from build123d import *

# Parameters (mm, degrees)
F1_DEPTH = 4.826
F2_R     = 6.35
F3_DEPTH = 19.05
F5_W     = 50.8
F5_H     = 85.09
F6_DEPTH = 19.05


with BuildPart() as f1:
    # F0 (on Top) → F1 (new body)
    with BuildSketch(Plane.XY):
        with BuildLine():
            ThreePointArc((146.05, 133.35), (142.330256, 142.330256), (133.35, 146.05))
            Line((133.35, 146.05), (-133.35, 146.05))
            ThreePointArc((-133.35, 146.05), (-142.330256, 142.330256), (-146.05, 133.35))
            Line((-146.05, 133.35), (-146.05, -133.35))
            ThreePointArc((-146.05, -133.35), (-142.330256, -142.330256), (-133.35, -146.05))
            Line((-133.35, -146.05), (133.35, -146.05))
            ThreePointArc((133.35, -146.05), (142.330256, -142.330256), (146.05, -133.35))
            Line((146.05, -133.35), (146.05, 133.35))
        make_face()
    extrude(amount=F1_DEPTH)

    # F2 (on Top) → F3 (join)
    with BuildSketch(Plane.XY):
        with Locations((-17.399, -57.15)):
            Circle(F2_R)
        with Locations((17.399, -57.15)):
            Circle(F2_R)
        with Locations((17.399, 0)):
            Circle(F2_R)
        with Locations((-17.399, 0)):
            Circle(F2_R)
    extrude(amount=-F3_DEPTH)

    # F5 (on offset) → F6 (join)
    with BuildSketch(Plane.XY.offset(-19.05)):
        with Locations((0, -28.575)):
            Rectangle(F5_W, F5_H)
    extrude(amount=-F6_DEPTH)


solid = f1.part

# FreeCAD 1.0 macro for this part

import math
import FreeCAD as App
import Part
import Sketcher
from FreeCAD import Vector
Q = App.Units.Quantity

doc = App.newDocument("Part")
body = doc.addObject("PartDesign::Body", "Body")

sketch1 = doc.addObject("Sketcher::SketchObject", "Sketch")
body.addObject(sketch1)
sketch1.AttachmentSupport = (doc.XY_Plane, [""])
sketch1.MapMode = "FlatFace"
sketch1.addGeometry([
    Part.ArcOfCircle(Part.Circle(Vector(133, 133, 0), Vector(0, 0, 1), 13), math.radians(0), math.radians(90)),
    Part.LineSegment(Vector(133, 146, 0), Vector(-133, 146, 0)),
    Part.ArcOfCircle(Part.Circle(Vector(-133, 133, 0), Vector(0, 0, 1), 13), math.radians(90), math.radians(180)),
    Part.LineSegment(Vector(-146, 133, 0), Vector(-146, -133, 0)),
    Part.ArcOfCircle(Part.Circle(Vector(-133, -133, 0), Vector(0, 0, 1), 13), math.radians(-180), math.radians(-90)),
    Part.LineSegment(Vector(-133, -146, 0), Vector(133, -146, 0)),
    Part.ArcOfCircle(Part.Circle(Vector(133, -133, 0), Vector(0, 0, 1), 13), math.radians(-90), math.radians(0)),
    Part.LineSegment(Vector(146, -133, 0), Vector(146, 133, 0)),
], False)
sketch1.addConstraint([
    Sketcher.Constraint("Tangent", 0, 2, 1, 1),
    Sketcher.Constraint("Tangent", 1, 2, 2, 1),
    Sketcher.Constraint("Tangent", 2, 2, 3, 1),
    Sketcher.Constraint("Tangent", 3, 2, 4, 1),
    Sketcher.Constraint("Tangent", 4, 2, 5, 1),
    Sketcher.Constraint("Tangent", 5, 2, 6, 1),
    Sketcher.Constraint("Tangent", 6, 2, 7, 1),
    Sketcher.Constraint("Tangent", 7, 2, 0, 1),
    Sketcher.Constraint("Horizontal", 1),
    Sketcher.Constraint("Vertical", 3),
    Sketcher.Constraint("Horizontal", 5),
    Sketcher.Constraint("Vertical", 7),
    Sketcher.Constraint("Equal", 0, 2),
    Sketcher.Constraint("Equal", 2, 4),
    Sketcher.Constraint("Equal", 4, 6),
    Sketcher.Constraint("Symmetric", 0, 3, 4, 3, -1, 1),
    Sketcher.Constraint("Equal", 5, 3),
    Sketcher.Constraint("Radius", 0, Q("0.5 in")),
    Sketcher.Constraint("DistanceX", 1, 2, 1, 1, Q("10.5 in")),
])
pad1 = doc.addObject("PartDesign::Pad", "Pad")
body.addObject(pad1)
pad1.Profile = sketch1
pad1.Length = Q("0.19 in")

sketch2 = doc.addObject("Sketcher::SketchObject", "Sketch001")
body.addObject(sketch2)
sketch2.AttachmentSupport = (doc.XY_Plane, [""])
sketch2.MapMode = "FlatFace"
sketch2.addGeometry([
    Part.Circle(Vector(-17, -57, 0), Vector(0, 0, 1), 6),
    Part.Circle(Vector(17, -57, 0), Vector(0, 0, 1), 6),
    Part.Circle(Vector(17, 0, 0), Vector(0, 0, 1), 6),
    Part.Circle(Vector(-17, 0, 0), Vector(0, 0, 1), 6),
], False)
sketch2.addConstraint([
    Sketcher.Constraint("Equal", 0, 1),
    Sketcher.Constraint("Equal", 1, 2),
    Sketcher.Constraint("Equal", 2, 3),
    Sketcher.Constraint("Symmetric", 2, 3, 3, 3, -1, 1),
    Sketcher.Constraint("Symmetric", 0, 3, 1, 3, -2),
    Sketcher.Constraint("PointOnObject", 2, 3, -1),
    Sketcher.Constraint("Vertical", 1, 3, 2, 3),
    Sketcher.Constraint("Diameter", 0, Q("0.5 in")),
    Sketcher.Constraint("DistanceY", 0, 3, -1, 1, Q("2.25 in")),
    Sketcher.Constraint("DistanceX", 0, 3, 1, 3, Q("1.37 in")),
])
pad2 = doc.addObject("PartDesign::Pad", "Pad001")
body.addObject(pad2)
pad2.Profile = sketch2
pad2.Length = Q("0.75 in")
pad2.Reversed = True

sketch3 = doc.addObject("Sketcher::SketchObject", "Sketch002")
body.addObject(sketch3)
sketch3.AttachmentSupport = (doc.XY_Plane, [""])
sketch3.MapMode = "FlatFace"
sketch3.AttachmentOffset = App.Placement(Vector(0, 0, -0.75 * 25.4), App.Rotation())
sketch3.addGeometry([
    Part.LineSegment(Vector(-25, 14, 0), Vector(-25, -71, 0)),
    Part.LineSegment(Vector(-25, -71, 0), Vector(25, -71, 0)),
    Part.LineSegment(Vector(25, -71, 0), Vector(25, 14, 0)),
    Part.LineSegment(Vector(25, 14, 0), Vector(-25, 14, 0)),
], False)
sketch3.addConstraint([
    Sketcher.Constraint("Coincident", 0, 2, 1, 1),
    Sketcher.Constraint("Coincident", 1, 2, 2, 1),
    Sketcher.Constraint("Coincident", 2, 2, 3, 1),
    Sketcher.Constraint("Coincident", 3, 2, 0, 1),
    Sketcher.Constraint("Vertical", 0),
    Sketcher.Constraint("Horizontal", 1),
    Sketcher.Constraint("Vertical", 2),
    Sketcher.Constraint("Horizontal", 3),
    Sketcher.Constraint("DistanceX", 1, 1, 1, 2, Q("2 in")),
    Sketcher.Constraint("DistanceX", 0, 2, -1, 1, Q("1 in")),
    Sketcher.Constraint("DistanceY", 0, 2, 0, 1, Q("3.35 in")),
    Sketcher.Constraint("DistanceY", 0, 2, -1, 1, Q("2.8 in")),
])
pad3 = doc.addObject("PartDesign::Pad", "Pad002")
body.addObject(pad3)
pad3.Profile = sketch3
pad3.Length = Q("0.75 in")
pad3.Reversed = True

doc.recompute()
